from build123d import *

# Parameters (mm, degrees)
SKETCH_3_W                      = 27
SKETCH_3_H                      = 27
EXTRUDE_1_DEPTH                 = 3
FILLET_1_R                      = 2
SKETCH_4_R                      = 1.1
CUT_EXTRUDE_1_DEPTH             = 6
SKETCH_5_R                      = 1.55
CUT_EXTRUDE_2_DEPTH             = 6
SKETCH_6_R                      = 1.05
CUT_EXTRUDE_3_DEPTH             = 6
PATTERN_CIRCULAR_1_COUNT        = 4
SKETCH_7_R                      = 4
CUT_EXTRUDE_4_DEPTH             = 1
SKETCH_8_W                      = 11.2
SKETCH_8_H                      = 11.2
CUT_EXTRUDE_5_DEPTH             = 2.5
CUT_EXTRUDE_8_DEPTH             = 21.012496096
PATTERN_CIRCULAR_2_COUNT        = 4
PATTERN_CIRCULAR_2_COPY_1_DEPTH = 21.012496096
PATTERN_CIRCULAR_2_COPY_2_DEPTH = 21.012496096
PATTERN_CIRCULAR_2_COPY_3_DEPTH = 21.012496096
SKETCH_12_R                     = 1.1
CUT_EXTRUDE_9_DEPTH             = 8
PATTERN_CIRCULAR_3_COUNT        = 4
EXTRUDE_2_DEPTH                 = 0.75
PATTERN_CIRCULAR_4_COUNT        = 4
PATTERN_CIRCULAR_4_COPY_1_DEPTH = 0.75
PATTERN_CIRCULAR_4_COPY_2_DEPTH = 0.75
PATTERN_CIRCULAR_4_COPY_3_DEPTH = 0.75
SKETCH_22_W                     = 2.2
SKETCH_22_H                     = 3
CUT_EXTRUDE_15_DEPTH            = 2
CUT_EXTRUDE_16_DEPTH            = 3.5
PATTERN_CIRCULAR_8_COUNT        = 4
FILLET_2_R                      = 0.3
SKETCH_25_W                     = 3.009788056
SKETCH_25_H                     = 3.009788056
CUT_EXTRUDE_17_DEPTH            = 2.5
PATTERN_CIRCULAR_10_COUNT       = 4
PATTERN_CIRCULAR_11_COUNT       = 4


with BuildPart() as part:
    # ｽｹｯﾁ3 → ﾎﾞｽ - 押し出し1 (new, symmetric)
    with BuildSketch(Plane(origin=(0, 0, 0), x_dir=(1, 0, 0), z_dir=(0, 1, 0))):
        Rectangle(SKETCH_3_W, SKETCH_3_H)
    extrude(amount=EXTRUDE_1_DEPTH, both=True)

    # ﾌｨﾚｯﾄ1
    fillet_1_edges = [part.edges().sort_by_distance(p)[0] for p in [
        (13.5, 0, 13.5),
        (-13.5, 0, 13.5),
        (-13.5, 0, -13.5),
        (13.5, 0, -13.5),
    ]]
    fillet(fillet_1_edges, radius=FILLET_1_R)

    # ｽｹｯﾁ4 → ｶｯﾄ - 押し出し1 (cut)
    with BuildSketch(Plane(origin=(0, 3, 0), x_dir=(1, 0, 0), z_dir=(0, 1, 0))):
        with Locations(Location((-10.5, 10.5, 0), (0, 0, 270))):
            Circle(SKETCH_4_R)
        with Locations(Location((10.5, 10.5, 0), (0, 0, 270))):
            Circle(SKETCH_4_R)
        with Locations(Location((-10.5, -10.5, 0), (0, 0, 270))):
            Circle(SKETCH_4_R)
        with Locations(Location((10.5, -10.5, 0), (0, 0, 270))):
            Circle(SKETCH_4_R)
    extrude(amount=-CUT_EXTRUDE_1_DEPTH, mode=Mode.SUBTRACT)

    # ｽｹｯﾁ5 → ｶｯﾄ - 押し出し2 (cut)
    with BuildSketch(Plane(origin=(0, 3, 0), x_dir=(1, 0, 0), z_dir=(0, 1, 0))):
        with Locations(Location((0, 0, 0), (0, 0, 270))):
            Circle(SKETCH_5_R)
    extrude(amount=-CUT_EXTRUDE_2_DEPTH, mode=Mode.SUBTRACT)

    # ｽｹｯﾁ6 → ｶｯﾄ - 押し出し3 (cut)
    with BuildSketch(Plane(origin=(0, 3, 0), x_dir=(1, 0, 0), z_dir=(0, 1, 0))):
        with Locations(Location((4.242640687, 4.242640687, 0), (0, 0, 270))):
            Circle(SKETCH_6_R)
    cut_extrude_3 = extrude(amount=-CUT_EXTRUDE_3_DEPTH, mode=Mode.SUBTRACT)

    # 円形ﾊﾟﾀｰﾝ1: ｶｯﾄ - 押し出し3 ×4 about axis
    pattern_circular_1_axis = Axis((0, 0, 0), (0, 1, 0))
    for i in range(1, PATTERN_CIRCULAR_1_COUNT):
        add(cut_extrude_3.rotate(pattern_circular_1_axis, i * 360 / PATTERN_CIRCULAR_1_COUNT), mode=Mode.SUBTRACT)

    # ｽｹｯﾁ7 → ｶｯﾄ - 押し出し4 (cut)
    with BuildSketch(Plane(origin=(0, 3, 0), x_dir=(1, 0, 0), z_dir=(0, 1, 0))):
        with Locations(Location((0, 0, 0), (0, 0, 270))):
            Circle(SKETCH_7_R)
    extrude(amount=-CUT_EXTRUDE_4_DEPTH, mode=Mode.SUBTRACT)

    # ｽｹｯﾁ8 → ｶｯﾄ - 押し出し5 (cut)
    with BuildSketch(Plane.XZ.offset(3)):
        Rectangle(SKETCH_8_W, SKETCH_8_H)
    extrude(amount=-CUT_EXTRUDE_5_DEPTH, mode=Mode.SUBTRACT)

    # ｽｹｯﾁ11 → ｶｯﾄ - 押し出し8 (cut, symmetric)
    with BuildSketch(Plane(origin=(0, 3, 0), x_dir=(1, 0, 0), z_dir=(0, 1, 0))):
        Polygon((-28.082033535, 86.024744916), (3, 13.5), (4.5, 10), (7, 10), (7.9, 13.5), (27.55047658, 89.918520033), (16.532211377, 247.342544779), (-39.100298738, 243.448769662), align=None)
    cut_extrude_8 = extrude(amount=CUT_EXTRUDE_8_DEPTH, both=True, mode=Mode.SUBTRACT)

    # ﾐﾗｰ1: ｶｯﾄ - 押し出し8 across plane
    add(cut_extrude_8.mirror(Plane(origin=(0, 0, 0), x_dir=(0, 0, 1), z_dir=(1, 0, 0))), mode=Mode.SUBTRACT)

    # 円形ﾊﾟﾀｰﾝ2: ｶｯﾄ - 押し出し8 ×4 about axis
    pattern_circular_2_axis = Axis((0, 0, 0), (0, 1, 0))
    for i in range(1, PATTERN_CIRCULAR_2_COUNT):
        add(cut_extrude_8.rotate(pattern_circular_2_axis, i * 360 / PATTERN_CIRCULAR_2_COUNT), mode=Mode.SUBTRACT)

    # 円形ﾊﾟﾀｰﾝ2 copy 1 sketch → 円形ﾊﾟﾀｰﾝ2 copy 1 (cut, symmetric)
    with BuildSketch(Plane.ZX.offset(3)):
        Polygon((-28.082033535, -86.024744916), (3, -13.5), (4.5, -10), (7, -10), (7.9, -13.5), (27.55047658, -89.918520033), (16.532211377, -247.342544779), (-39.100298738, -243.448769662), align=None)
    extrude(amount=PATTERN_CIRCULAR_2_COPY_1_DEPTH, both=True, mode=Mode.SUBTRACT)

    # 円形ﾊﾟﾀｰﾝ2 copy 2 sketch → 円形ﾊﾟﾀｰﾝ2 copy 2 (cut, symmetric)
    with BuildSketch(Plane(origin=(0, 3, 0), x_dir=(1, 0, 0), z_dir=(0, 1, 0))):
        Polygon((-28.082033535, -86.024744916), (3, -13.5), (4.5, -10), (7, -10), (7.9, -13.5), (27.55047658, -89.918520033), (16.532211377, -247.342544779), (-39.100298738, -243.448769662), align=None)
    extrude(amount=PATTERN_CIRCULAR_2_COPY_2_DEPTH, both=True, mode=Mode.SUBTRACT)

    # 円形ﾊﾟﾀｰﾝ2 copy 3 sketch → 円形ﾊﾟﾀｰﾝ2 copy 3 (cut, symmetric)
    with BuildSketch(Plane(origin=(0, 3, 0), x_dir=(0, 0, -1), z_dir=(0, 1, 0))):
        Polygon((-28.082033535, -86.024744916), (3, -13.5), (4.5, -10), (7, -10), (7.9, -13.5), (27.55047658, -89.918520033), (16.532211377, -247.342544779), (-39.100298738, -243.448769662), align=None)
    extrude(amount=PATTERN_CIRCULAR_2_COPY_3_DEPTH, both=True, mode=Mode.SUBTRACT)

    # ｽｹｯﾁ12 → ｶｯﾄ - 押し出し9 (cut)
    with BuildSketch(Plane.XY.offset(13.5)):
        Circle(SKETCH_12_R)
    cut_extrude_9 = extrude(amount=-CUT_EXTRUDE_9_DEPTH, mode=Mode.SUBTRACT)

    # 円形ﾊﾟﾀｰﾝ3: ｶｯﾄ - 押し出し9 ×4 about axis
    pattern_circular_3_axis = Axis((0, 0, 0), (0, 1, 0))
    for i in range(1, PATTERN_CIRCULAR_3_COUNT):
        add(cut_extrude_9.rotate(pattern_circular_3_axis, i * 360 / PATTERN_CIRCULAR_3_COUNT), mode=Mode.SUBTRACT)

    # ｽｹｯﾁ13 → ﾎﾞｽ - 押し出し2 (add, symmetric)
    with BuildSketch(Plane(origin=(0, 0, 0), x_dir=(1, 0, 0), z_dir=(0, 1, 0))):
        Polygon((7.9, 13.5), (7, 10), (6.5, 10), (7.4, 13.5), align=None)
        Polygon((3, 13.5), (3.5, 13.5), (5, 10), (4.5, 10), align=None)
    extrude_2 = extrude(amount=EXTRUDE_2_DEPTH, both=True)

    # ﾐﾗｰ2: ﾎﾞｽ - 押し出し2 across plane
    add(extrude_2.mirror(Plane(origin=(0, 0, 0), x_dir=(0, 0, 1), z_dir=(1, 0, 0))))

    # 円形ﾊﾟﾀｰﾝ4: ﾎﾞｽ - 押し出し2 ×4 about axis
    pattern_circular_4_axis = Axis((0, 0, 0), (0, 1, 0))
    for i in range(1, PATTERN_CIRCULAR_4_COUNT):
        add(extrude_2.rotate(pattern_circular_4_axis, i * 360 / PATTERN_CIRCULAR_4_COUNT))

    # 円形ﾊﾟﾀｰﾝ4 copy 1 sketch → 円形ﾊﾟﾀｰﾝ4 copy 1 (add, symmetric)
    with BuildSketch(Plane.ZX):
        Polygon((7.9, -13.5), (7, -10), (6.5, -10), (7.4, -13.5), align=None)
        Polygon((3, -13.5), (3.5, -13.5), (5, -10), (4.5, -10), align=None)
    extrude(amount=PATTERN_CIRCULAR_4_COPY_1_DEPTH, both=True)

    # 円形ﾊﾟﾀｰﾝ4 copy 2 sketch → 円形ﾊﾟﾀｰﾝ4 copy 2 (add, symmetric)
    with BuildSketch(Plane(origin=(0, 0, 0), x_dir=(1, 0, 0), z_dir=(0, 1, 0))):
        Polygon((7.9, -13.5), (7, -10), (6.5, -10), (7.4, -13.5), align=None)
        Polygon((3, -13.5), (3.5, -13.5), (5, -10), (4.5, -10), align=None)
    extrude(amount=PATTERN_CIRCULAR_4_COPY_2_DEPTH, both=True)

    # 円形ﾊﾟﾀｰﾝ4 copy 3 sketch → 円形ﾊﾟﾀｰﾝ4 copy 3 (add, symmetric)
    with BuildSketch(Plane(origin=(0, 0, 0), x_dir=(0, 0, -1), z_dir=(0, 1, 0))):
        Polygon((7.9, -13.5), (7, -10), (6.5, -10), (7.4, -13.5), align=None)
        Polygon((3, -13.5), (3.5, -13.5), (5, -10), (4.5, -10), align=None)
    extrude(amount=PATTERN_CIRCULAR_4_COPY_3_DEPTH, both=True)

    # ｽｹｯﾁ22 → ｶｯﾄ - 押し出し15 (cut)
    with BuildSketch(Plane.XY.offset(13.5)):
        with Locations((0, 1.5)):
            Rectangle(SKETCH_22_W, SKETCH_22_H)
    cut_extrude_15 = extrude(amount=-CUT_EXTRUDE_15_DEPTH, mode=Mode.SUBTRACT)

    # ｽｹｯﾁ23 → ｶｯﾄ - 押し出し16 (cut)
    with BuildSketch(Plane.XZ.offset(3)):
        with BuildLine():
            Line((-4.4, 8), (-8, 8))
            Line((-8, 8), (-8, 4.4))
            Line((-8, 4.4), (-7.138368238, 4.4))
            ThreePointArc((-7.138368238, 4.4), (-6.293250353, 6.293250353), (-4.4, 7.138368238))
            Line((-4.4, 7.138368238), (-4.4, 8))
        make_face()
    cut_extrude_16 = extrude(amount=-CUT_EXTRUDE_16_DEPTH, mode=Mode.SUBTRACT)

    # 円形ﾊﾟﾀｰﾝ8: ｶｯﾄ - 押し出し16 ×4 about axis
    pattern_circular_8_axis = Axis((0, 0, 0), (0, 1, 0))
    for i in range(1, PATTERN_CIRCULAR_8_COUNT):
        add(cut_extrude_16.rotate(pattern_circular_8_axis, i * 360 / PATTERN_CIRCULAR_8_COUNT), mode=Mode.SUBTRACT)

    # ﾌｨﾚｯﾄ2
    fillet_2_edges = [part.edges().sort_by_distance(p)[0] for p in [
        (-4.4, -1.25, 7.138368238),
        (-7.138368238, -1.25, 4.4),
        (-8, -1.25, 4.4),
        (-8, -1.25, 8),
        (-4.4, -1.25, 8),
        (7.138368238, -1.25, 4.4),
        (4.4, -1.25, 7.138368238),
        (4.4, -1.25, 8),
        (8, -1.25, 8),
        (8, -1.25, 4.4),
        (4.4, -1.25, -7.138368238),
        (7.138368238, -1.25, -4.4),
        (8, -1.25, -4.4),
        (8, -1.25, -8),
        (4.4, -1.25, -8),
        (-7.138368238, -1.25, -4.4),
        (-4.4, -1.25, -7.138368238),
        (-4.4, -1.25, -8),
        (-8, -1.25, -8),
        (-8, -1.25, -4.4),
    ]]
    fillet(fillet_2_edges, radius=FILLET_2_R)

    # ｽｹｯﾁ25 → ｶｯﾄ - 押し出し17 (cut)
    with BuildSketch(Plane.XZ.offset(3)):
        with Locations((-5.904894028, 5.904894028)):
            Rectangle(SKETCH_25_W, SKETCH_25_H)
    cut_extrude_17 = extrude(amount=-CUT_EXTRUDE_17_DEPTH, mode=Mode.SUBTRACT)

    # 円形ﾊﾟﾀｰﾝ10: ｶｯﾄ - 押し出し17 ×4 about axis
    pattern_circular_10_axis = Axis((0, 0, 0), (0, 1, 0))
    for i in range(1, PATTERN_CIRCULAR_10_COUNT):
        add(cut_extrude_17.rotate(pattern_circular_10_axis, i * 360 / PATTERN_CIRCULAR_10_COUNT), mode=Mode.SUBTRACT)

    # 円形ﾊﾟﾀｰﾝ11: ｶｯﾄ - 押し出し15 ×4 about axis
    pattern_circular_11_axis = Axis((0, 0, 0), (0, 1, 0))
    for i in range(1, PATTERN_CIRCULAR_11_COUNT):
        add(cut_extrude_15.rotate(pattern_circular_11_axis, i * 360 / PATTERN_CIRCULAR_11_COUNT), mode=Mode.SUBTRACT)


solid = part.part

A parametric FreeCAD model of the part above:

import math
import FreeCAD as App
import Part
import Sketcher
from FreeCAD import Vector
Q = App.Units.Quantity


def edges_at(feature, points):
    """Names of the edges that pass closest to the given points."""
    edges = feature.Shape.Edges
    near = lambda p: min(range(len(edges)), key=lambda i: edges[i].distToShape(Part.Vertex(*p))[0])
    return sorted({f"Edge{near(p) + 1}" for p in points})

doc = App.newDocument("Part")
body = doc.addObject("PartDesign::Body", "Body")

sketch1 = doc.addObject("Sketcher::SketchObject", "Sketch")
body.addObject(sketch1)
sketch1.AttachmentSupport = (doc.XZ_Plane, [""])
sketch1.MapMode = "FlatFace"
sketch1.addGeometry([
    Part.LineSegment(Vector(-14, -14, 0), Vector(-14, 14, 0)),
    Part.LineSegment(Vector(-14, 14, 0), Vector(14, 14, 0)),
    Part.LineSegment(Vector(14, 14, 0), Vector(14, -14, 0)),
    Part.LineSegment(Vector(14, -14, 0), Vector(-14, -14, 0)),
], False)
sketch1.addConstraint([
    Sketcher.Constraint("Coincident", 0, 2, 1, 1),
    Sketcher.Constraint("Coincident", 1, 2, 2, 1),
    Sketcher.Constraint("Coincident", 2, 2, 3, 1),
    Sketcher.Constraint("Coincident", 3, 2, 0, 1),
    Sketcher.Constraint("Vertical", 0),
    Sketcher.Constraint("Horizontal", 1),
    Sketcher.Constraint("Vertical", 2),
    Sketcher.Constraint("Horizontal", 3),
    Sketcher.Constraint("Symmetric", 0, 2, 2, 2, -1, 1),
    Sketcher.Constraint("Equal", 3, 0),
    Sketcher.Constraint("DistanceX", 1, 1, 1, 2, Q("27 mm")),
])
pad1 = doc.addObject("PartDesign::Pad", "Pad")
body.addObject(pad1)
pad1.Profile = sketch1
pad1.Length = 6
pad1.Midplane = True
doc.recompute()

fillet = doc.addObject("PartDesign::Fillet", "Fillet")
body.addObject(fillet)
fillet.Base = (pad1, edges_at(pad1, [
    (13.5, 0, 13.5),
    (-13.5, 0, 13.5),
    (-13.5, 0, -13.5),
    (13.5, 0, -13.5),
]))
fillet.Radius = 2

sketch2 = doc.addObject("Sketcher::SketchObject", "Sketch001")
body.addObject(sketch2)
sketch2.AttachmentSupport = (doc.XZ_Plane, [""])
sketch2.MapMode = "FlatFace"
sketch2.AttachmentOffset = App.Placement(Vector(0, 0, -3), App.Rotation())
sketch2.addGeometry([
    Part.Circle(Vector(-10.5, -10.5, 0), Vector(0, 0, 1), 1.1),
    Part.Circle(Vector(10.5, -10.5, 0), Vector(0, 0, 1), 1.1),
    Part.Circle(Vector(-10.5, 10.5, 0), Vector(0, 0, 1), 1.1),
    Part.Circle(Vector(10.5, 10.5, 0), Vector(0, 0, 1), 1.1),
], False)
sketch2.addConstraint([
    Sketcher.Constraint("Equal", 0, 1),
    Sketcher.Constraint("Equal", 1, 2),
    Sketcher.Constraint("Equal", 2, 3),
    Sketcher.Constraint("Symmetric", 1, 3, 2, 3, -1, 1),
    Sketcher.Constraint("Symmetric", 0, 3, 3, 3, -1, 1),
    Sketcher.Constraint("Symmetric", 0, 3, 1, 3, -2),
    Sketcher.Constraint("Diameter", 0, Q("2.2 mm")),
    Sketcher.Constraint("DistanceX", 0, 3, 1, 3, Q("21 mm")),
    Sketcher.Constraint("DistanceY", 0, 3, 2, 3, Q("21 mm")),
])
pocket1 = doc.addObject("PartDesign::Pocket", "Pocket")
body.addObject(pocket1)
pocket1.Profile = sketch2
pocket1.Length = 6
pocket1.Reversed = True

sketch3 = doc.addObject("Sketcher::SketchObject", "Sketch002")
body.addObject(sketch3)
sketch3.AttachmentSupport = (doc.XZ_Plane, [""])
sketch3.MapMode = "FlatFace"
sketch3.AttachmentOffset = App.Placement(Vector(0, 0, -3), App.Rotation())
sketch3.addGeometry(Part.Circle(Vector(0, 0, 0), Vector(0, 0, 1), 1.6), False)
sketch3.addConstraint([
    Sketcher.Constraint("Coincident", 0, 3, -1, 1),
    Sketcher.Constraint("Diameter", 0, Q("3.1 mm")),
])
pocket2 = doc.addObject("PartDesign::Pocket", "Pocket001")
body.addObject(pocket2)
pocket2.Profile = sketch3
pocket2.Length = 6
pocket2.Reversed = True

sketch4 = doc.addObject("Sketcher::SketchObject", "Sketch003")
body.addObject(sketch4)
sketch4.AttachmentSupport = (doc.XZ_Plane, [""])
sketch4.MapMode = "FlatFace"
sketch4.AttachmentOffset = App.Placement(Vector(0, 0, -3), App.Rotation())
sketch4.addGeometry(Part.Circle(Vector(4.2, -4.2, 0), Vector(0, 0, 1), 1.1), False)
sketch4.addConstraint([
    Sketcher.Constraint("Diameter", 0, Q("2.1 mm")),
    Sketcher.Constraint("DistanceX", -1, 1, 0, 3, Q("4.242641 mm")),
    Sketcher.Constraint("DistanceY", 0, 3, -1, 1, Q("4.242641 mm")),
])
pocket3 = doc.addObject("PartDesign::Pocket", "Pocket002")
body.addObject(pocket3)
pocket3.Profile = sketch4
pocket3.Length = 6
pocket3.Reversed = True
doc.recompute()

polarpattern = doc.addObject("PartDesign::PolarPattern", "PolarPattern")
body.addObject(polarpattern)
polarpattern.Originals = [pocket3]
polarpattern.Axis = (doc.Y_Axis, [""])
polarpattern.Angle = 360
polarpattern.Occurrences = 4
body.Tip = polarpattern

sketch5 = doc.addObject("Sketcher::SketchObject", "Sketch004")
body.addObject(sketch5)
sketch5.AttachmentSupport = (doc.XZ_Plane, [""])
sketch5.MapMode = "FlatFace"
sketch5.AttachmentOffset = App.Placement(Vector(0, 0, -3), App.Rotation())
sketch5.addGeometry(Part.Circle(Vector(0, 0, 0), Vector(0, 0, 1), 4), False)
sketch5.addConstraint([
    Sketcher.Constraint("Coincident", 0, 3, -1, 1),
    Sketcher.Constraint("Diameter", 0, Q("8 mm")),
])
pocket4 = doc.addObject("PartDesign::Pocket", "Pocket003")
body.addObject(pocket4)
pocket4.Profile = sketch5
pocket4.Length = 1
pocket4.Reversed = True

sketch6 = doc.addObject("Sketcher::SketchObject", "Sketch005")
body.addObject(sketch6)
sketch6.AttachmentSupport = (doc.XZ_Plane, [""])
sketch6.MapMode = "FlatFace"
sketch6.AttachmentOffset = App.Placement(Vector(0, 0, 3), App.Rotation())
sketch6.addGeometry([
    Part.LineSegment(Vector(-6, 6, 0), Vector(-6, -6, 0)),
    Part.LineSegment(Vector(-6, -6, 0), Vector(6, -6, 0)),
    Part.LineSegment(Vector(6, -6, 0), Vector(6, 6, 0)),
    Part.LineSegment(Vector(6, 6, 0), Vector(-6, 6, 0)),
], False)
sketch6.addConstraint([
    Sketcher.Constraint("Coincident", 0, 2, 1, 1),
    Sketcher.Constraint("Coincident", 1, 2, 2, 1),
    Sketcher.Constraint("Coincident", 2, 2, 3, 1),
    Sketcher.Constraint("Coincident", 3, 2, 0, 1),
    Sketcher.Constraint("Vertical", 0),
    Sketcher.Constraint("Horizontal", 1),
    Sketcher.Constraint("Vertical", 2),
    Sketcher.Constraint("Horizontal", 3),
    Sketcher.Constraint("Symmetric", 0, 2, 2, 2, -1, 1),
    Sketcher.Constraint("Equal", 3, 0),
    Sketcher.Constraint("DistanceX", 1, 1, 1, 2, Q("11.2 mm")),
])
pocket5 = doc.addObject("PartDesign::Pocket", "Pocket004")
body.addObject(pocket5)
pocket5.Profile = sketch6
pocket5.Length = 2.5

sketch7 = doc.addObject("Sketcher::SketchObject", "Sketch006")
body.addObject(sketch7)
sketch7.AttachmentSupport = (doc.XZ_Plane, [""])
sketch7.MapMode = "FlatFace"
sketch7.AttachmentOffset = App.Placement(Vector(0, 0, -3), App.Rotation())
sketch7.addGeometry([
    Part.LineSegment(Vector(-28.1, -86, 0), Vector(3, -13.5, 0)),
    Part.LineSegment(Vector(3, -13.5, 0), Vector(4.5, -10, 0)),
    Part.LineSegment(Vector(4.5, -10, 0), Vector(7, -10, 0)),
    Part.LineSegment(Vector(7, -10, 0), Vector(7.9, -13.5, 0)),
    Part.LineSegment(Vector(7.9, -13.5, 0), Vector(27.6, -89.9, 0)),
    Part.LineSegment(Vector(27.6, -89.9, 0), Vector(16.5, -247.3, 0)),
    Part.LineSegment(Vector(16.5, -247.3, 0), Vector(-39.1, -243.4, 0)),
    Part.LineSegment(Vector(-39.1, -243.4, 0), Vector(-28.1, -86, 0)),
], False)
sketch7.addConstraint([
    Sketcher.Constraint("Coincident", 0, 2, 1, 1),
    Sketcher.Constraint("Coincident", 1, 2, 2, 1),
    Sketcher.Constraint("Coincident", 2, 2, 3, 1),
    Sketcher.Constraint("Coincident", 3, 2, 4, 1),
    Sketcher.Constraint("Coincident", 4, 2, 5, 1),
    Sketcher.Constraint("Coincident", 5, 2, 6, 1),
    Sketcher.Constraint("Coincident", 6, 2, 7, 1),
    Sketcher.Constraint("Coincident", 7, 2, 0, 1),
    Sketcher.Constraint("Horizontal", 2),
    Sketcher.Constraint("Parallel", 0, 1),
    Sketcher.Constraint("Parallel", 3, 4),
    Sketcher.Constraint("Perpendicular", 5, 6),
    Sketcher.Constraint("Perpendicular", 6, 7),
    Sketcher.Constraint("Horizontal", 0, 2, 3, 2),
    Sketcher.Constraint("Equal", 0, 4),
    Sketcher.Constraint("Equal", 5, 7),
    Sketcher.Constraint("DistanceX", 2, 1, 2, 2, Q("2.5 mm")),
    Sketcher.Constraint("DistanceX", -1, 1, 0, 2, Q("3 mm")),
    Sketcher.Constraint("DistanceY", 1, 2, -1, 1, Q("10 mm")),
    Sketcher.Constraint("DistanceX", -1, 1, 2, 2, Q("7 mm")),
    Sketcher.Constraint("DistanceY", 0, 2, -1, 1, Q("13.5 mm")),
    Sketcher.Constraint("DistanceX", -1, 1, 3, 2, Q("7.9 mm")),
    Sketcher.Constraint("DistanceX", 6, 2, -1, 1, Q("39.100299 mm")),
    Sketcher.Constraint("Distance", 0, Q("78.904572 mm")),
])
pocket6 = doc.addObject("PartDesign::Pocket", "Pocket005")
body.addObject(pocket6)
pocket6.Profile = sketch7
pocket6.Length = 42.024992
pocket6.Midplane = True
doc.recompute()

mirrored = doc.addObject("PartDesign::Mirrored", "Mirrored")
body.addObject(mirrored)
mirrored.Originals = [pocket6]
mirrored.MirrorPlane = (doc.YZ_Plane, [""])
body.Tip = mirrored
doc.recompute()

polarpattern2 = doc.addObject("PartDesign::PolarPattern", "PolarPattern001")
body.addObject(polarpattern2)
polarpattern2.Originals = [pocket6]
polarpattern2.Axis = (doc.Y_Axis, [""])
polarpattern2.Angle = 360
polarpattern2.Occurrences = 4
body.Tip = polarpattern2

sketch8 = doc.addObject("Sketcher::SketchObject", "Sketch007")
body.addObject(sketch8)
sketch8.AttachmentSupport = (doc.XZ_Plane, [""])
sketch8.MapMode = "FlatFace"
sketch8.AttachmentOffset = App.Placement(Vector(0, 0, -3), App.Rotation())
sketch8.addGeometry([
    Part.LineSegment(Vector(-13.5, 3, 0), Vector(-86, -28.1, 0)),
    Part.LineSegment(Vector(-86, -28.1, 0), Vector(-243.4, -39.1, 0)),
    Part.LineSegment(Vector(-243.4, -39.1, 0), Vector(-247.3, 16.5, 0)),
    Part.LineSegment(Vector(-247.3, 16.5, 0), Vector(-89.9, 27.6, 0)),
    Part.LineSegment(Vector(-89.9, 27.6, 0), Vector(-13.5, 7.9, 0)),
    Part.LineSegment(Vector(-13.5, 7.9, 0), Vector(-10, 7, 0)),
    Part.LineSegment(Vector(-10, 7, 0), Vector(-10, 4.5, 0)),
    Part.LineSegment(Vector(-10, 4.5, 0), Vector(-13.5, 3, 0)),
], False)
sketch8.addConstraint([
    Sketcher.Constraint("Coincident", 0, 2, 1, 1),
    Sketcher.Constraint("Coincident", 1, 2, 2, 1),
    Sketcher.Constraint("Coincident", 2, 2, 3, 1),
    Sketcher.Constraint("Coincident", 3, 2, 4, 1),
    Sketcher.Constraint("Coincident", 4, 2, 5, 1),
    Sketcher.Constraint("Coincident", 5, 2, 6, 1),
    Sketcher.Constraint("Coincident", 6, 2, 7, 1),
    Sketcher.Constraint("Coincident", 7, 2, 0, 1),
    Sketcher.Constraint("Vertical", 6),
    Sketcher.Constraint("Perpendicular", 1, 2),
    Sketcher.Constraint("Perpendicular", 2, 3),
    Sketcher.Constraint("Parallel", 4, 5),
    Sketcher.Constraint("Parallel", 0, 7),
    Sketcher.Constraint("Vertical", 4, 2, 7, 2),
    Sketcher.Constraint("Equal", 1, 3),
    Sketcher.Constraint("Equal", 0, 4),
    Sketcher.Constraint("DistanceY", 6, 2, 6, 1, Q("2.5 mm")),
    Sketcher.Constraint("DistanceX", 5, 2, -1, 1, Q("10 mm")),
    Sketcher.Constraint("DistanceY", -1, 1, 5, 2, Q("7 mm")),
    Sketcher.Constraint("DistanceY", -1, 1, 7, 2, Q("3 mm")),
    Sketcher.Constraint("DistanceX", 4, 2, -1, 1, Q("13.5 mm")),
    Sketcher.Constraint("DistanceY", -1, 1, 4, 2, Q("7.9 mm")),
    Sketcher.Constraint("DistanceY", 1, 2, -1, 1, Q("39.100299 mm")),
    Sketcher.Constraint("DistanceX", 2, 2, 0, 2, Q("161.3178 mm")),
])
pocket7 = doc.addObject("PartDesign::Pocket", "Pocket006")
body.addObject(pocket7)
pocket7.Profile = sketch8
pocket7.Length = 42.024992
pocket7.Midplane = True

sketch9 = doc.addObject("Sketcher::SketchObject", "Sketch008")
body.addObject(sketch9)
sketch9.AttachmentSupport = (doc.XZ_Plane, [""])
sketch9.MapMode = "FlatFace"
sketch9.AttachmentOffset = App.Placement(Vector(0, 0, -3), App.Rotation())
sketch9.addGeometry([
    Part.LineSegment(Vector(3, 13.5, 0), Vector(-28.1, 86, 0)),
    Part.LineSegment(Vector(-28.1, 86, 0), Vector(-39.1, 243.4, 0)),
    Part.LineSegment(Vector(-39.1, 243.4, 0), Vector(16.5, 247.3, 0)),
    Part.LineSegment(Vector(16.5, 247.3, 0), Vector(27.6, 89.9, 0)),
    Part.LineSegment(Vector(27.6, 89.9, 0), Vector(7.9, 13.5, 0)),
    Part.LineSegment(Vector(7.9, 13.5, 0), Vector(7, 10, 0)),
    Part.LineSegment(Vector(7, 10, 0), Vector(4.5, 10, 0)),
    Part.LineSegment(Vector(4.5, 10, 0), Vector(3, 13.5, 0)),
], False)
sketch9.addConstraint([
    Sketcher.Constraint("Coincident", 0, 2, 1, 1),
    Sketcher.Constraint("Coincident", 1, 2, 2, 1),
    Sketcher.Constraint("Coincident", 2, 2, 3, 1),
    Sketcher.Constraint("Coincident", 3, 2, 4, 1),
    Sketcher.Constraint("Coincident", 4, 2, 5, 1),
    Sketcher.Constraint("Coincident", 5, 2, 6, 1),
    Sketcher.Constraint("Coincident", 6, 2, 7, 1),
    Sketcher.Constraint("Coincident", 7, 2, 0, 1),
    Sketcher.Constraint("Horizontal", 6),
    Sketcher.Constraint("Perpendicular", 1, 2),
    Sketcher.Constraint("Perpendicular", 2, 3),
    Sketcher.Constraint("Parallel", 4, 5),
    Sketcher.Constraint("Parallel", 0, 7),
    Sketcher.Constraint("Horizontal", 4, 2, 7, 2),
    Sketcher.Constraint("Equal", 1, 3),
    Sketcher.Constraint("Equal", 0, 4),
    Sketcher.Constraint("DistanceX", 6, 2, 6, 1, Q("2.5 mm")),
    Sketcher.Constraint("DistanceX", -1, 1, 5, 2, Q("7 mm")),
    Sketcher.Constraint("DistanceY", -1, 1, 5, 2, Q("10 mm")),
    Sketcher.Constraint("DistanceX", -1, 1, 7, 2, Q("3 mm")),
    Sketcher.Constraint("DistanceX", -1, 1, 4, 2, Q("7.9 mm")),
    Sketcher.Constraint("DistanceY", -1, 1, 4, 2, Q("13.5 mm")),
    Sketcher.Constraint("DistanceX", 1, 2, -1, 1, Q("39.100299 mm")),
    Sketcher.Constraint("DistanceY", 0, 2, 2, 2, Q("161.3178 mm")),
])
pocket8 = doc.addObject("PartDesign::Pocket", "Pocket007")
body.addObject(pocket8)
pocket8.Profile = sketch9
pocket8.Length = 42.024992
pocket8.Midplane = True

sketch10 = doc.addObject("Sketcher::SketchObject", "Sketch009")
body.addObject(sketch10)
sketch10.AttachmentSupport = (doc.XZ_Plane, [""])
sketch10.MapMode = "FlatFace"
sketch10.AttachmentOffset = App.Placement(Vector(0, 0, -3), App.Rotation())
sketch10.addGeometry([
    Part.LineSegment(Vector(13.5, -3, 0), Vector(86, 28.1, 0)),
    Part.LineSegment(Vector(86, 28.1, 0), Vector(243.4, 39.1, 0)),
    Part.LineSegment(Vector(243.4, 39.1, 0), Vector(247.3, -16.5, 0)),
    Part.LineSegment(Vector(247.3, -16.5, 0), Vector(89.9, -27.6, 0)),
    Part.LineSegment(Vector(89.9, -27.6, 0), Vector(13.5, -7.9, 0)),
    Part.LineSegment(Vector(13.5, -7.9, 0), Vector(10, -7, 0)),
    Part.LineSegment(Vector(10, -7, 0), Vector(10, -4.5, 0)),
    Part.LineSegment(Vector(10, -4.5, 0), Vector(13.5, -3, 0)),
], False)
sketch10.addConstraint([
    Sketcher.Constraint("Coincident", 0, 2, 1, 1),
    Sketcher.Constraint("Coincident", 1, 2, 2, 1),
    Sketcher.Constraint("Coincident", 2, 2, 3, 1),
    Sketcher.Constraint("Coincident", 3, 2, 4, 1),
    Sketcher.Constraint("Coincident", 4, 2, 5, 1),
    Sketcher.Constraint("Coincident", 5, 2, 6, 1),
    Sketcher.Constraint("Coincident", 6, 2, 7, 1),
    Sketcher.Constraint("Coincident", 7, 2, 0, 1),
    Sketcher.Constraint("Vertical", 6),
    Sketcher.Constraint("Perpendicular", 1, 2),
    Sketcher.Constraint("Perpendicular", 2, 3),
    Sketcher.Constraint("Parallel", 4, 5),
    Sketcher.Constraint("Parallel", 0, 7),
    Sketcher.Constraint("Vertical", 4, 2, 7, 2),
    Sketcher.Constraint("Equal", 1, 3),
    Sketcher.Constraint("Equal", 0, 4),
    Sketcher.Constraint("DistanceY", 6, 1, 6, 2, Q("2.5 mm")),
    Sketcher.Constraint("DistanceX", -1, 1, 5, 2, Q("10 mm")),
    Sketcher.Constraint("DistanceY", 5, 2, -1, 1, Q("7 mm")),
    Sketcher.Constraint("DistanceY", 7, 2, -1, 1, Q("3 mm")),
    Sketcher.Constraint("DistanceX", -1, 1, 4, 2, Q("13.5 mm")),
    Sketcher.Constraint("DistanceY", 4, 2, -1, 1, Q("7.9 mm")),
    Sketcher.Constraint("DistanceY", -1, 1, 1, 2, Q("39.100299 mm")),
    Sketcher.Constraint("DistanceX", 0, 2, 2, 2, Q("161.3178 mm")),
])
pocket9 = doc.addObject("PartDesign::Pocket", "Pocket008")
body.addObject(pocket9)
pocket9.Profile = sketch10
pocket9.Length = 42.024992
pocket9.Midplane = True

sketch11 = doc.addObject("Sketcher::SketchObject", "Sketch010")
body.addObject(sketch11)
sketch11.AttachmentSupport = (doc.XY_Plane, [""])
sketch11.MapMode = "FlatFace"
sketch11.AttachmentOffset = App.Placement(Vector(0, 0, 13.5), App.Rotation())
sketch11.addGeometry(Part.Circle(Vector(0, 0, 0), Vector(0, 0, 1), 1.1), False)
sketch11.addConstraint([
    Sketcher.Constraint("Coincident", 0, 3, -1, 1),
    Sketcher.Constraint("Diameter", 0, Q("2.2 mm")),
])
pocket10 = doc.addObject("PartDesign::Pocket", "Pocket009")
body.addObject(pocket10)
pocket10.Profile = sketch11
pocket10.Length = 8
doc.recompute()

polarpattern3 = doc.addObject("PartDesign::PolarPattern", "PolarPattern002")
body.addObject(polarpattern3)
polarpattern3.Originals = [pocket10]
polarpattern3.Axis = (doc.Y_Axis, [""])
polarpattern3.Angle = 360
polarpattern3.Occurrences = 4
body.Tip = polarpattern3

sketch12 = doc.addObject("Sketcher::SketchObject", "Sketch011")
body.addObject(sketch12)
sketch12.AttachmentSupport = (doc.XZ_Plane, [""])
sketch12.MapMode = "FlatFace"
sketch12.addGeometry([
    Part.LineSegment(Vector(7, -10, 0), Vector(7.9, -13.5, 0)),
    Part.LineSegment(Vector(7.9, -13.5, 0), Vector(7.4, -13.5, 0)),
    Part.LineSegment(Vector(7.4, -13.5, 0), Vector(6.5, -10, 0)),
    Part.LineSegment(Vector(6.5, -10, 0), Vector(7, -10, 0)),
    Part.LineSegment(Vector(3.5, -13.5, 0), Vector(3, -13.5, 0)),
    Part.LineSegment(Vector(3, -13.5, 0), Vector(4.5, -10, 0)),
    Part.LineSegment(Vector(4.5, -10, 0), Vector(5, -10, 0)),
    Part.LineSegment(Vector(5, -10, 0), Vector(3.5, -13.5, 0)),
], False)
sketch12.addConstraint([
    Sketcher.Constraint("Coincident", 0, 2, 1, 1),
    Sketcher.Constraint("Coincident", 1, 2, 2, 1),
    Sketcher.Constraint("Coincident", 2, 2, 3, 1),
    Sketcher.Constraint("Coincident", 3, 2, 0, 1),
    Sketcher.Constraint("Coincident", 4, 2, 5, 1),
    Sketcher.Constraint("Coincident", 5, 2, 6, 1),
    Sketcher.Constraint("Coincident", 6, 2, 7, 1),
    Sketcher.Constraint("Coincident", 7, 2, 4, 1),
    Sketcher.Constraint("Horizontal", 1),
    Sketcher.Constraint("Horizontal", 3),
    Sketcher.Constraint("Horizontal", 4),
    Sketcher.Constraint("Horizontal", 6),
    Sketcher.Constraint("Parallel", 0, 2),
    Sketcher.Constraint("Parallel", 5, 7),
    Sketcher.Constraint("Horizontal", 1, 2, 4, 2),
    Sketcher.Constraint("Horizontal", 3, 2, 5, 2),
    Sketcher.Constraint("Equal", 3, 4),
    Sketcher.Constraint("DistanceX", 1, 2, 1, 1, Q("0.5 mm")),
    Sketcher.Constraint("DistanceY", 2, 2, -1, 1, Q("10 mm")),
    Sketcher.Constraint("DistanceX", -1, 1, 3, 2, Q("7 mm")),
    Sketcher.Constraint("DistanceX", -1, 1, 4, 2, Q("3 mm")),
    Sketcher.Constraint("DistanceX", -1, 1, 6, 2, Q("5 mm")),
    Sketcher.Constraint("DistanceX", -1, 1, 0, 2, Q("7.9 mm")),
    Sketcher.Constraint("DistanceY", 0, 2, -1, 1, Q("13.5 mm")),
])
pad2 = doc.addObject("PartDesign::Pad", "Pad001")
body.addObject(pad2)
pad2.Profile = sketch12
pad2.Length = 1.5
pad2.Midplane = True
doc.recompute()

mirrored2 = doc.addObject("PartDesign::Mirrored", "Mirrored001")
body.addObject(mirrored2)
mirrored2.Originals = [pad2]
mirrored2.MirrorPlane = (doc.YZ_Plane, [""])
body.Tip = mirrored2
doc.recompute()

polarpattern4 = doc.addObject("PartDesign::PolarPattern", "PolarPattern003")
body.addObject(polarpattern4)
polarpattern4.Originals = [pad2]
polarpattern4.Axis = (doc.Y_Axis, [""])
polarpattern4.Angle = 360
polarpattern4.Occurrences = 4
body.Tip = polarpattern4

sketch13 = doc.addObject("Sketcher::SketchObject", "Sketch012")
body.addObject(sketch13)
sketch13.AttachmentSupport = (doc.XZ_Plane, [""])
sketch13.MapMode = "FlatFace"
sketch13.addGeometry([
    Part.LineSegment(Vector(-13.5, 7.9, 0), Vector(-10, 7, 0)),
    Part.LineSegment(Vector(-10, 7, 0), Vector(-10, 6.5, 0)),
    Part.LineSegment(Vector(-10, 6.5, 0), Vector(-13.5, 7.4, 0)),
    Part.LineSegment(Vector(-13.5, 7.4, 0), Vector(-13.5, 7.9, 0)),
    Part.LineSegment(Vector(-13.5, 3, 0), Vector(-13.5, 3.5, 0)),
    Part.LineSegment(Vector(-13.5, 3.5, 0), Vector(-10, 5, 0)),
    Part.LineSegment(Vector(-10, 5, 0), Vector(-10, 4.5, 0)),
    Part.LineSegment(Vector(-10, 4.5, 0), Vector(-13.5, 3, 0)),
], False)
sketch13.addConstraint([
    Sketcher.Constraint("Coincident", 0, 2, 1, 1),
    Sketcher.Constraint("Coincident", 1, 2, 2, 1),
    Sketcher.Constraint("Coincident", 2, 2, 3, 1),
    Sketcher.Constraint("Coincident", 3, 2, 0, 1),
    Sketcher.Constraint("Coincident", 4, 2, 5, 1),
    Sketcher.Constraint("Coincident", 5, 2, 6, 1),
    Sketcher.Constraint("Coincident", 6, 2, 7, 1),
    Sketcher.Constraint("Coincident", 7, 2, 4, 1),
    Sketcher.Constraint("Vertical", 1),
    Sketcher.Constraint("Vertical", 3),
    Sketcher.Constraint("Vertical", 4),
    Sketcher.Constraint("Vertical", 6),
    Sketcher.Constraint("Parallel", 0, 2),
    Sketcher.Constraint("Parallel", 5, 7),
    Sketcher.Constraint("Vertical", 3, 2, 4, 2),
    Sketcher.Constraint("Vertical", 1, 2, 5, 2),
    Sketcher.Constraint("Equal", 3, 4),
    Sketcher.Constraint("DistanceY", 1, 2, 1, 1, Q("0.5 mm")),
    Sketcher.Constraint("DistanceX", 0, 2, -1, 1, Q("10 mm")),
    Sketcher.Constraint("DistanceY", -1, 1, 0, 2, Q("7 mm")),
    Sketcher.Constraint("DistanceY", -1, 1, 5, 2, Q("5 mm")),
    Sketcher.Constraint("DistanceY", -1, 1, 7, 2, Q("3 mm")),
    Sketcher.Constraint("DistanceX", 2, 2, -1, 1, Q("13.5 mm")),
    Sketcher.Constraint("DistanceY", -1, 1, 2, 2, Q("7.4 mm")),
])
pad3 = doc.addObject("PartDesign::Pad", "Pad002")
body.addObject(pad3)
pad3.Profile = sketch13
pad3.Length = 1.5
pad3.Midplane = True

sketch14 = doc.addObject("Sketcher::SketchObject", "Sketch013")
body.addObject(sketch14)
sketch14.AttachmentSupport = (doc.XZ_Plane, [""])
sketch14.MapMode = "FlatFace"
sketch14.addGeometry([
    Part.LineSegment(Vector(7.9, 13.5, 0), Vector(7, 10, 0)),
    Part.LineSegment(Vector(7, 10, 0), Vector(6.5, 10, 0)),
    Part.LineSegment(Vector(6.5, 10, 0), Vector(7.4, 13.5, 0)),
    Part.LineSegment(Vector(7.4, 13.5, 0), Vector(7.9, 13.5, 0)),
    Part.LineSegment(Vector(3, 13.5, 0), Vector(3.5, 13.5, 0)),
    Part.LineSegment(Vector(3.5, 13.5, 0), Vector(5, 10, 0)),
    Part.LineSegment(Vector(5, 10, 0), Vector(4.5, 10, 0)),
    Part.LineSegment(Vector(4.5, 10, 0), Vector(3, 13.5, 0)),
], False)
sketch14.addConstraint([
    Sketcher.Constraint("Coincident", 0, 2, 1, 1),
    Sketcher.Constraint("Coincident", 1, 2, 2, 1),
    Sketcher.Constraint("Coincident", 2, 2, 3, 1),
    Sketcher.Constraint("Coincident", 3, 2, 0, 1),
    Sketcher.Constraint("Coincident", 4, 2, 5, 1),
    Sketcher.Constraint("Coincident", 5, 2, 6, 1),
    Sketcher.Constraint("Coincident", 6, 2, 7, 1),
    Sketcher.Constraint("Coincident", 7, 2, 4, 1),
    Sketcher.Constraint("Horizontal", 1),
    Sketcher.Constraint("Horizontal", 3),
    Sketcher.Constraint("Horizontal", 4),
    Sketcher.Constraint("Horizontal", 6),
    Sketcher.Constraint("Parallel", 0, 2),
    Sketcher.Constraint("Parallel", 5, 7),
    Sketcher.Constraint("Horizontal", 3, 2, 4, 2),
    Sketcher.Constraint("Horizontal", 1, 2, 5, 2),
    Sketcher.Constraint("Equal", 3, 4),
    Sketcher.Constraint("DistanceX", 1, 2, 1, 1, Q("0.5 mm")),
    Sketcher.Constraint("DistanceX", -1, 1, 0, 2, Q("7 mm")),
    Sketcher.Constraint("DistanceY", -1, 1, 0, 2, Q("10 mm")),
    Sketcher.Constraint("DistanceX", -1, 1, 5, 2, Q("5 mm")),
    Sketcher.Constraint("DistanceX", -1, 1, 7, 2, Q("3 mm")),
    Sketcher.Constraint("DistanceX", -1, 1, 2, 2, Q("7.4 mm")),
    Sketcher.Constraint("DistanceY", -1, 1, 2, 2, Q("13.5 mm")),
])
pad4 = doc.addObject("PartDesign::Pad", "Pad003")
body.addObject(pad4)
pad4.Profile = sketch14
pad4.Length = 1.5
pad4.Midplane = True

sketch15 = doc.addObject("Sketcher::SketchObject", "Sketch014")
body.addObject(sketch15)
sketch15.AttachmentSupport = (doc.XZ_Plane, [""])
sketch15.MapMode = "FlatFace"
sketch15.addGeometry([
    Part.LineSegment(Vector(13.5, -7.9, 0), Vector(10, -7, 0)),
    Part.LineSegment(Vector(10, -7, 0), Vector(10, -6.5, 0)),
    Part.LineSegment(Vector(10, -6.5, 0), Vector(13.5, -7.4, 0)),
    Part.LineSegment(Vector(13.5, -7.4, 0), Vector(13.5, -7.9, 0)),
    Part.LineSegment(Vector(13.5, -3, 0), Vector(13.5, -3.5, 0)),
    Part.LineSegment(Vector(13.5, -3.5, 0), Vector(10, -5, 0)),
    Part.LineSegment(Vector(10, -5, 0), Vector(10, -4.5, 0)),
    Part.LineSegment(Vector(10, -4.5, 0), Vector(13.5, -3, 0)),
], False)
sketch15.addConstraint([
    Sketcher.Constraint("Coincident", 0, 2, 1, 1),
    Sketcher.Constraint("Coincident", 1, 2, 2, 1),
    Sketcher.Constraint("Coincident", 2, 2, 3, 1),
    Sketcher.Constraint("Coincident", 3, 2, 0, 1),
    Sketcher.Constraint("Coincident", 4, 2, 5, 1),
    Sketcher.Constraint("Coincident", 5, 2, 6, 1),
    Sketcher.Constraint("Coincident", 6, 2, 7, 1),
    Sketcher.Constraint("Coincident", 7, 2, 4, 1),
    Sketcher.Constraint("Vertical", 1),
    Sketcher.Constraint("Vertical", 3),
    Sketcher.Constraint("Vertical", 4),
    Sketcher.Constraint("Vertical", 6),
    Sketcher.Constraint("Parallel", 0, 2),
    Sketcher.Constraint("Parallel", 5, 7),
    Sketcher.Constraint("Vertical", 3, 2, 4, 2),
    Sketcher.Constraint("Vertical", 1, 2, 5, 2),
    Sketcher.Constraint("Equal", 3, 4),
    Sketcher.Constraint("DistanceY", 1, 1, 1, 2, Q("0.5 mm")),
    Sketcher.Constraint("DistanceX", -1, 1, 0, 2, Q("10 mm")),
    Sketcher.Constraint("DistanceY", 0, 2, -1, 1, Q("7 mm")),
    Sketcher.Constraint("DistanceY", 5, 2, -1, 1, Q("5 mm")),
    Sketcher.Constraint("DistanceY", 7, 2, -1, 1, Q("3 mm")),
    Sketcher.Constraint("DistanceX", -1, 1, 2, 2, Q("13.5 mm")),
    Sketcher.Constraint("DistanceY", 2, 2, -1, 1, Q("7.4 mm")),
])
pad5 = doc.addObject("PartDesign::Pad", "Pad004")
body.addObject(pad5)
pad5.Profile = sketch15
pad5.Length = 1.5
pad5.Midplane = True

sketch16 = doc.addObject("Sketcher::SketchObject", "Sketch015")
body.addObject(sketch16)
sketch16.AttachmentSupport = (doc.XY_Plane, [""])
sketch16.MapMode = "FlatFace"
sketch16.AttachmentOffset = App.Placement(Vector(0, 0, 13.5), App.Rotation())
sketch16.addGeometry([
    Part.LineSegment(Vector(-1.1, 3, 0), Vector(-1.1, 0, 0)),
    Part.LineSegment(Vector(-1.1, 0, 0), Vector(1.1, 0, 0)),
    Part.LineSegment(Vector(1.1, 0, 0), Vector(1.1, 3, 0)),
    Part.LineSegment(Vector(1.1, 3, 0), Vector(-1.1, 3, 0)),
], False)
sketch16.addConstraint([
    Sketcher.Constraint("Coincident", 0, 2, 1, 1),
    Sketcher.Constraint("Coincident", 1, 2, 2, 1),
    Sketcher.Constraint("Coincident", 2, 2, 3, 1),
    Sketcher.Constraint("Coincident", 3, 2, 0, 1),
    Sketcher.Constraint("Vertical", 0),
    Sketcher.Constraint("Horizontal", 1),
    Sketcher.Constraint("Vertical", 2),
    Sketcher.Constraint("Horizontal", 3),
    Sketcher.Constraint("Symmetric", 0, 2, 1, 2, -1, 1),
    Sketcher.Constraint("DistanceY", 0, 2, 0, 1, Q("3 mm")),
    Sketcher.Constraint("DistanceX", 1, 1, 1, 2, Q("2.2 mm")),
])
pocket11 = doc.addObject("PartDesign::Pocket", "Pocket010")
body.addObject(pocket11)
pocket11.Profile = sketch16
pocket11.Length = 2

sketch17 = doc.addObject("Sketcher::SketchObject", "Sketch016")
body.addObject(sketch17)
sketch17.AttachmentSupport = (doc.XZ_Plane, [""])
sketch17.MapMode = "FlatFace"
sketch17.AttachmentOffset = App.Placement(Vector(0, 0, 3), App.Rotation())
sketch17.addGeometry([
    Part.LineSegment(Vector(-4.4, 8, 0), Vector(-8, 8, 0)),
    Part.LineSegment(Vector(-8, 8, 0), Vector(-8, 4.4, 0)),
    Part.LineSegment(Vector(-8, 4.4, 0), Vector(-7.1, 4.4, 0)),
    Part.ArcOfCircle(Part.Circle(Vector(-4.2, 4.2, 0), Vector(0, 0, 1), 2.9), math.radians(93), math.radians(177)),
    Part.LineSegment(Vector(-4.4, 7.1, 0), Vector(-4.4, 8, 0)),
], False)
sketch17.addConstraint([
    Sketcher.Constraint("Coincident", 0, 2, 1, 1),
    Sketcher.Constraint("Coincident", 1, 2, 2, 1),
    Sketcher.Constraint("Coincident", 2, 2, 3, 2),
    Sketcher.Constraint("Coincident", 3, 1, 4, 1),
    Sketcher.Constraint("Coincident", 4, 2, 0, 1),
    Sketcher.Constraint("Horizontal", 0),
    Sketcher.Constraint("Vertical", 1),
    Sketcher.Constraint("Horizontal", 2),
    Sketcher.Constraint("Vertical", 4),
    Sketcher.Constraint("Equal", 0, 1),
    Sketcher.Constraint("Equal", 2, 4),
    Sketcher.Constraint("Radius", 3, Q("2.9 mm")),
    Sketcher.Constraint("DistanceX", 0, 2, 0, 1, Q("3.6 mm")),
    Sketcher.Constraint("DistanceX", 0, 2, -1, 1, Q("8 mm")),
    Sketcher.Constraint("DistanceY", -1, 1, 0, 2, Q("8 mm")),
    Sketcher.Constraint("DistanceX", 2, 1, 2, 2, Q("0.861632 mm")),
])
pocket12 = doc.addObject("PartDesign::Pocket", "Pocket011")
body.addObject(pocket12)
pocket12.Profile = sketch17
pocket12.Length = 3.5
doc.recompute()

polarpattern5 = doc.addObject("PartDesign::PolarPattern", "PolarPattern004")
body.addObject(polarpattern5)
polarpattern5.Originals = [pocket12]
polarpattern5.Axis = (doc.Y_Axis, [""])
polarpattern5.Angle = 360
polarpattern5.Occurrences = 4
body.Tip = polarpattern5
doc.recompute()

fillet2 = doc.addObject("PartDesign::Fillet", "Fillet001")
body.addObject(fillet2)
fillet2.Base = (polarpattern5, edges_at(polarpattern5, [
    (-4.4, -1.25, 7.138),
    (-7.138, -1.25, 4.4),
    (-8, -1.25, 4.4),
    (-8, -1.25, 8),
    (-4.4, -1.25, 8),
    (7.138, -1.25, 4.4),
    (4.4, -1.25, 7.138),
    (4.4, -1.25, 8),
    (8, -1.25, 8),
    (8, -1.25, 4.4),
    (4.4, -1.25, -7.138),
    (7.138, -1.25, -4.4),
    (8, -1.25, -4.4),
    (8, -1.25, -8),
    (4.4, -1.25, -8),
    (-7.138, -1.25, -4.4),
    (-4.4, -1.25, -7.138),
    (-4.4, -1.25, -8),
    (-8, -1.25, -8),
    (-8, -1.25, -4.4),
]))
fillet2.Radius = 0.3

sketch18 = doc.addObject("Sketcher::SketchObject", "Sketch017")
body.addObject(sketch18)
sketch18.AttachmentSupport = (doc.XZ_Plane, [""])
sketch18.MapMode = "FlatFace"
sketch18.AttachmentOffset = App.Placement(Vector(0, 0, 3), App.Rotation())
sketch18.addGeometry([
    Part.LineSegment(Vector(-7.4, 7.4, 0), Vector(-7.4, 4.4, 0)),
    Part.LineSegment(Vector(-7.4, 4.4, 0), Vector(-4.4, 4.4, 0)),
    Part.LineSegment(Vector(-4.4, 4.4, 0), Vector(-4.4, 7.4, 0)),
    Part.LineSegment(Vector(-4.4, 7.4, 0), Vector(-7.4, 7.4, 0)),
], False)
sketch18.addConstraint([
    Sketcher.Constraint("Coincident", 0, 2, 1, 1),
    Sketcher.Constraint("Coincident", 1, 2, 2, 1),
    Sketcher.Constraint("Coincident", 2, 2, 3, 1),
    Sketcher.Constraint("Coincident", 3, 2, 0, 1),
    Sketcher.Constraint("Vertical", 0),
    Sketcher.Constraint("Horizontal", 1),
    Sketcher.Constraint("Vertical", 2),
    Sketcher.Constraint("Horizontal", 3),
    Sketcher.Constraint("Equal", 3, 0),
    Sketcher.Constraint("DistanceY", -1, 1, 0, 2, Q("4.4 mm")),
    Sketcher.Constraint("DistanceX", 1, 2, -1, 1, Q("4.4 mm")),
    Sketcher.Constraint("DistanceX", 1, 1, 1, 2, Q("3.009788 mm")),
])
pocket13 = doc.addObject("PartDesign::Pocket", "Pocket012")
body.addObject(pocket13)
pocket13.Profile = sketch18
pocket13.Length = 2.5
doc.recompute()

polarpattern6 = doc.addObject("PartDesign::PolarPattern", "PolarPattern005")
body.addObject(polarpattern6)
polarpattern6.Originals = [pocket13]
polarpattern6.Axis = (doc.Y_Axis, [""])
polarpattern6.Angle = 360
polarpattern6.Occurrences = 4
body.Tip = polarpattern6
doc.recompute()

polarpattern7 = doc.addObject("PartDesign::PolarPattern", "PolarPattern006")
body.addObject(polarpattern7)
polarpattern7.Originals = [pocket11]
polarpattern7.Axis = (doc.Y_Axis, [""])
polarpattern7.Angle = 360
polarpattern7.Occurrences = 4
body.Tip = polarpattern7

doc.recompute()
